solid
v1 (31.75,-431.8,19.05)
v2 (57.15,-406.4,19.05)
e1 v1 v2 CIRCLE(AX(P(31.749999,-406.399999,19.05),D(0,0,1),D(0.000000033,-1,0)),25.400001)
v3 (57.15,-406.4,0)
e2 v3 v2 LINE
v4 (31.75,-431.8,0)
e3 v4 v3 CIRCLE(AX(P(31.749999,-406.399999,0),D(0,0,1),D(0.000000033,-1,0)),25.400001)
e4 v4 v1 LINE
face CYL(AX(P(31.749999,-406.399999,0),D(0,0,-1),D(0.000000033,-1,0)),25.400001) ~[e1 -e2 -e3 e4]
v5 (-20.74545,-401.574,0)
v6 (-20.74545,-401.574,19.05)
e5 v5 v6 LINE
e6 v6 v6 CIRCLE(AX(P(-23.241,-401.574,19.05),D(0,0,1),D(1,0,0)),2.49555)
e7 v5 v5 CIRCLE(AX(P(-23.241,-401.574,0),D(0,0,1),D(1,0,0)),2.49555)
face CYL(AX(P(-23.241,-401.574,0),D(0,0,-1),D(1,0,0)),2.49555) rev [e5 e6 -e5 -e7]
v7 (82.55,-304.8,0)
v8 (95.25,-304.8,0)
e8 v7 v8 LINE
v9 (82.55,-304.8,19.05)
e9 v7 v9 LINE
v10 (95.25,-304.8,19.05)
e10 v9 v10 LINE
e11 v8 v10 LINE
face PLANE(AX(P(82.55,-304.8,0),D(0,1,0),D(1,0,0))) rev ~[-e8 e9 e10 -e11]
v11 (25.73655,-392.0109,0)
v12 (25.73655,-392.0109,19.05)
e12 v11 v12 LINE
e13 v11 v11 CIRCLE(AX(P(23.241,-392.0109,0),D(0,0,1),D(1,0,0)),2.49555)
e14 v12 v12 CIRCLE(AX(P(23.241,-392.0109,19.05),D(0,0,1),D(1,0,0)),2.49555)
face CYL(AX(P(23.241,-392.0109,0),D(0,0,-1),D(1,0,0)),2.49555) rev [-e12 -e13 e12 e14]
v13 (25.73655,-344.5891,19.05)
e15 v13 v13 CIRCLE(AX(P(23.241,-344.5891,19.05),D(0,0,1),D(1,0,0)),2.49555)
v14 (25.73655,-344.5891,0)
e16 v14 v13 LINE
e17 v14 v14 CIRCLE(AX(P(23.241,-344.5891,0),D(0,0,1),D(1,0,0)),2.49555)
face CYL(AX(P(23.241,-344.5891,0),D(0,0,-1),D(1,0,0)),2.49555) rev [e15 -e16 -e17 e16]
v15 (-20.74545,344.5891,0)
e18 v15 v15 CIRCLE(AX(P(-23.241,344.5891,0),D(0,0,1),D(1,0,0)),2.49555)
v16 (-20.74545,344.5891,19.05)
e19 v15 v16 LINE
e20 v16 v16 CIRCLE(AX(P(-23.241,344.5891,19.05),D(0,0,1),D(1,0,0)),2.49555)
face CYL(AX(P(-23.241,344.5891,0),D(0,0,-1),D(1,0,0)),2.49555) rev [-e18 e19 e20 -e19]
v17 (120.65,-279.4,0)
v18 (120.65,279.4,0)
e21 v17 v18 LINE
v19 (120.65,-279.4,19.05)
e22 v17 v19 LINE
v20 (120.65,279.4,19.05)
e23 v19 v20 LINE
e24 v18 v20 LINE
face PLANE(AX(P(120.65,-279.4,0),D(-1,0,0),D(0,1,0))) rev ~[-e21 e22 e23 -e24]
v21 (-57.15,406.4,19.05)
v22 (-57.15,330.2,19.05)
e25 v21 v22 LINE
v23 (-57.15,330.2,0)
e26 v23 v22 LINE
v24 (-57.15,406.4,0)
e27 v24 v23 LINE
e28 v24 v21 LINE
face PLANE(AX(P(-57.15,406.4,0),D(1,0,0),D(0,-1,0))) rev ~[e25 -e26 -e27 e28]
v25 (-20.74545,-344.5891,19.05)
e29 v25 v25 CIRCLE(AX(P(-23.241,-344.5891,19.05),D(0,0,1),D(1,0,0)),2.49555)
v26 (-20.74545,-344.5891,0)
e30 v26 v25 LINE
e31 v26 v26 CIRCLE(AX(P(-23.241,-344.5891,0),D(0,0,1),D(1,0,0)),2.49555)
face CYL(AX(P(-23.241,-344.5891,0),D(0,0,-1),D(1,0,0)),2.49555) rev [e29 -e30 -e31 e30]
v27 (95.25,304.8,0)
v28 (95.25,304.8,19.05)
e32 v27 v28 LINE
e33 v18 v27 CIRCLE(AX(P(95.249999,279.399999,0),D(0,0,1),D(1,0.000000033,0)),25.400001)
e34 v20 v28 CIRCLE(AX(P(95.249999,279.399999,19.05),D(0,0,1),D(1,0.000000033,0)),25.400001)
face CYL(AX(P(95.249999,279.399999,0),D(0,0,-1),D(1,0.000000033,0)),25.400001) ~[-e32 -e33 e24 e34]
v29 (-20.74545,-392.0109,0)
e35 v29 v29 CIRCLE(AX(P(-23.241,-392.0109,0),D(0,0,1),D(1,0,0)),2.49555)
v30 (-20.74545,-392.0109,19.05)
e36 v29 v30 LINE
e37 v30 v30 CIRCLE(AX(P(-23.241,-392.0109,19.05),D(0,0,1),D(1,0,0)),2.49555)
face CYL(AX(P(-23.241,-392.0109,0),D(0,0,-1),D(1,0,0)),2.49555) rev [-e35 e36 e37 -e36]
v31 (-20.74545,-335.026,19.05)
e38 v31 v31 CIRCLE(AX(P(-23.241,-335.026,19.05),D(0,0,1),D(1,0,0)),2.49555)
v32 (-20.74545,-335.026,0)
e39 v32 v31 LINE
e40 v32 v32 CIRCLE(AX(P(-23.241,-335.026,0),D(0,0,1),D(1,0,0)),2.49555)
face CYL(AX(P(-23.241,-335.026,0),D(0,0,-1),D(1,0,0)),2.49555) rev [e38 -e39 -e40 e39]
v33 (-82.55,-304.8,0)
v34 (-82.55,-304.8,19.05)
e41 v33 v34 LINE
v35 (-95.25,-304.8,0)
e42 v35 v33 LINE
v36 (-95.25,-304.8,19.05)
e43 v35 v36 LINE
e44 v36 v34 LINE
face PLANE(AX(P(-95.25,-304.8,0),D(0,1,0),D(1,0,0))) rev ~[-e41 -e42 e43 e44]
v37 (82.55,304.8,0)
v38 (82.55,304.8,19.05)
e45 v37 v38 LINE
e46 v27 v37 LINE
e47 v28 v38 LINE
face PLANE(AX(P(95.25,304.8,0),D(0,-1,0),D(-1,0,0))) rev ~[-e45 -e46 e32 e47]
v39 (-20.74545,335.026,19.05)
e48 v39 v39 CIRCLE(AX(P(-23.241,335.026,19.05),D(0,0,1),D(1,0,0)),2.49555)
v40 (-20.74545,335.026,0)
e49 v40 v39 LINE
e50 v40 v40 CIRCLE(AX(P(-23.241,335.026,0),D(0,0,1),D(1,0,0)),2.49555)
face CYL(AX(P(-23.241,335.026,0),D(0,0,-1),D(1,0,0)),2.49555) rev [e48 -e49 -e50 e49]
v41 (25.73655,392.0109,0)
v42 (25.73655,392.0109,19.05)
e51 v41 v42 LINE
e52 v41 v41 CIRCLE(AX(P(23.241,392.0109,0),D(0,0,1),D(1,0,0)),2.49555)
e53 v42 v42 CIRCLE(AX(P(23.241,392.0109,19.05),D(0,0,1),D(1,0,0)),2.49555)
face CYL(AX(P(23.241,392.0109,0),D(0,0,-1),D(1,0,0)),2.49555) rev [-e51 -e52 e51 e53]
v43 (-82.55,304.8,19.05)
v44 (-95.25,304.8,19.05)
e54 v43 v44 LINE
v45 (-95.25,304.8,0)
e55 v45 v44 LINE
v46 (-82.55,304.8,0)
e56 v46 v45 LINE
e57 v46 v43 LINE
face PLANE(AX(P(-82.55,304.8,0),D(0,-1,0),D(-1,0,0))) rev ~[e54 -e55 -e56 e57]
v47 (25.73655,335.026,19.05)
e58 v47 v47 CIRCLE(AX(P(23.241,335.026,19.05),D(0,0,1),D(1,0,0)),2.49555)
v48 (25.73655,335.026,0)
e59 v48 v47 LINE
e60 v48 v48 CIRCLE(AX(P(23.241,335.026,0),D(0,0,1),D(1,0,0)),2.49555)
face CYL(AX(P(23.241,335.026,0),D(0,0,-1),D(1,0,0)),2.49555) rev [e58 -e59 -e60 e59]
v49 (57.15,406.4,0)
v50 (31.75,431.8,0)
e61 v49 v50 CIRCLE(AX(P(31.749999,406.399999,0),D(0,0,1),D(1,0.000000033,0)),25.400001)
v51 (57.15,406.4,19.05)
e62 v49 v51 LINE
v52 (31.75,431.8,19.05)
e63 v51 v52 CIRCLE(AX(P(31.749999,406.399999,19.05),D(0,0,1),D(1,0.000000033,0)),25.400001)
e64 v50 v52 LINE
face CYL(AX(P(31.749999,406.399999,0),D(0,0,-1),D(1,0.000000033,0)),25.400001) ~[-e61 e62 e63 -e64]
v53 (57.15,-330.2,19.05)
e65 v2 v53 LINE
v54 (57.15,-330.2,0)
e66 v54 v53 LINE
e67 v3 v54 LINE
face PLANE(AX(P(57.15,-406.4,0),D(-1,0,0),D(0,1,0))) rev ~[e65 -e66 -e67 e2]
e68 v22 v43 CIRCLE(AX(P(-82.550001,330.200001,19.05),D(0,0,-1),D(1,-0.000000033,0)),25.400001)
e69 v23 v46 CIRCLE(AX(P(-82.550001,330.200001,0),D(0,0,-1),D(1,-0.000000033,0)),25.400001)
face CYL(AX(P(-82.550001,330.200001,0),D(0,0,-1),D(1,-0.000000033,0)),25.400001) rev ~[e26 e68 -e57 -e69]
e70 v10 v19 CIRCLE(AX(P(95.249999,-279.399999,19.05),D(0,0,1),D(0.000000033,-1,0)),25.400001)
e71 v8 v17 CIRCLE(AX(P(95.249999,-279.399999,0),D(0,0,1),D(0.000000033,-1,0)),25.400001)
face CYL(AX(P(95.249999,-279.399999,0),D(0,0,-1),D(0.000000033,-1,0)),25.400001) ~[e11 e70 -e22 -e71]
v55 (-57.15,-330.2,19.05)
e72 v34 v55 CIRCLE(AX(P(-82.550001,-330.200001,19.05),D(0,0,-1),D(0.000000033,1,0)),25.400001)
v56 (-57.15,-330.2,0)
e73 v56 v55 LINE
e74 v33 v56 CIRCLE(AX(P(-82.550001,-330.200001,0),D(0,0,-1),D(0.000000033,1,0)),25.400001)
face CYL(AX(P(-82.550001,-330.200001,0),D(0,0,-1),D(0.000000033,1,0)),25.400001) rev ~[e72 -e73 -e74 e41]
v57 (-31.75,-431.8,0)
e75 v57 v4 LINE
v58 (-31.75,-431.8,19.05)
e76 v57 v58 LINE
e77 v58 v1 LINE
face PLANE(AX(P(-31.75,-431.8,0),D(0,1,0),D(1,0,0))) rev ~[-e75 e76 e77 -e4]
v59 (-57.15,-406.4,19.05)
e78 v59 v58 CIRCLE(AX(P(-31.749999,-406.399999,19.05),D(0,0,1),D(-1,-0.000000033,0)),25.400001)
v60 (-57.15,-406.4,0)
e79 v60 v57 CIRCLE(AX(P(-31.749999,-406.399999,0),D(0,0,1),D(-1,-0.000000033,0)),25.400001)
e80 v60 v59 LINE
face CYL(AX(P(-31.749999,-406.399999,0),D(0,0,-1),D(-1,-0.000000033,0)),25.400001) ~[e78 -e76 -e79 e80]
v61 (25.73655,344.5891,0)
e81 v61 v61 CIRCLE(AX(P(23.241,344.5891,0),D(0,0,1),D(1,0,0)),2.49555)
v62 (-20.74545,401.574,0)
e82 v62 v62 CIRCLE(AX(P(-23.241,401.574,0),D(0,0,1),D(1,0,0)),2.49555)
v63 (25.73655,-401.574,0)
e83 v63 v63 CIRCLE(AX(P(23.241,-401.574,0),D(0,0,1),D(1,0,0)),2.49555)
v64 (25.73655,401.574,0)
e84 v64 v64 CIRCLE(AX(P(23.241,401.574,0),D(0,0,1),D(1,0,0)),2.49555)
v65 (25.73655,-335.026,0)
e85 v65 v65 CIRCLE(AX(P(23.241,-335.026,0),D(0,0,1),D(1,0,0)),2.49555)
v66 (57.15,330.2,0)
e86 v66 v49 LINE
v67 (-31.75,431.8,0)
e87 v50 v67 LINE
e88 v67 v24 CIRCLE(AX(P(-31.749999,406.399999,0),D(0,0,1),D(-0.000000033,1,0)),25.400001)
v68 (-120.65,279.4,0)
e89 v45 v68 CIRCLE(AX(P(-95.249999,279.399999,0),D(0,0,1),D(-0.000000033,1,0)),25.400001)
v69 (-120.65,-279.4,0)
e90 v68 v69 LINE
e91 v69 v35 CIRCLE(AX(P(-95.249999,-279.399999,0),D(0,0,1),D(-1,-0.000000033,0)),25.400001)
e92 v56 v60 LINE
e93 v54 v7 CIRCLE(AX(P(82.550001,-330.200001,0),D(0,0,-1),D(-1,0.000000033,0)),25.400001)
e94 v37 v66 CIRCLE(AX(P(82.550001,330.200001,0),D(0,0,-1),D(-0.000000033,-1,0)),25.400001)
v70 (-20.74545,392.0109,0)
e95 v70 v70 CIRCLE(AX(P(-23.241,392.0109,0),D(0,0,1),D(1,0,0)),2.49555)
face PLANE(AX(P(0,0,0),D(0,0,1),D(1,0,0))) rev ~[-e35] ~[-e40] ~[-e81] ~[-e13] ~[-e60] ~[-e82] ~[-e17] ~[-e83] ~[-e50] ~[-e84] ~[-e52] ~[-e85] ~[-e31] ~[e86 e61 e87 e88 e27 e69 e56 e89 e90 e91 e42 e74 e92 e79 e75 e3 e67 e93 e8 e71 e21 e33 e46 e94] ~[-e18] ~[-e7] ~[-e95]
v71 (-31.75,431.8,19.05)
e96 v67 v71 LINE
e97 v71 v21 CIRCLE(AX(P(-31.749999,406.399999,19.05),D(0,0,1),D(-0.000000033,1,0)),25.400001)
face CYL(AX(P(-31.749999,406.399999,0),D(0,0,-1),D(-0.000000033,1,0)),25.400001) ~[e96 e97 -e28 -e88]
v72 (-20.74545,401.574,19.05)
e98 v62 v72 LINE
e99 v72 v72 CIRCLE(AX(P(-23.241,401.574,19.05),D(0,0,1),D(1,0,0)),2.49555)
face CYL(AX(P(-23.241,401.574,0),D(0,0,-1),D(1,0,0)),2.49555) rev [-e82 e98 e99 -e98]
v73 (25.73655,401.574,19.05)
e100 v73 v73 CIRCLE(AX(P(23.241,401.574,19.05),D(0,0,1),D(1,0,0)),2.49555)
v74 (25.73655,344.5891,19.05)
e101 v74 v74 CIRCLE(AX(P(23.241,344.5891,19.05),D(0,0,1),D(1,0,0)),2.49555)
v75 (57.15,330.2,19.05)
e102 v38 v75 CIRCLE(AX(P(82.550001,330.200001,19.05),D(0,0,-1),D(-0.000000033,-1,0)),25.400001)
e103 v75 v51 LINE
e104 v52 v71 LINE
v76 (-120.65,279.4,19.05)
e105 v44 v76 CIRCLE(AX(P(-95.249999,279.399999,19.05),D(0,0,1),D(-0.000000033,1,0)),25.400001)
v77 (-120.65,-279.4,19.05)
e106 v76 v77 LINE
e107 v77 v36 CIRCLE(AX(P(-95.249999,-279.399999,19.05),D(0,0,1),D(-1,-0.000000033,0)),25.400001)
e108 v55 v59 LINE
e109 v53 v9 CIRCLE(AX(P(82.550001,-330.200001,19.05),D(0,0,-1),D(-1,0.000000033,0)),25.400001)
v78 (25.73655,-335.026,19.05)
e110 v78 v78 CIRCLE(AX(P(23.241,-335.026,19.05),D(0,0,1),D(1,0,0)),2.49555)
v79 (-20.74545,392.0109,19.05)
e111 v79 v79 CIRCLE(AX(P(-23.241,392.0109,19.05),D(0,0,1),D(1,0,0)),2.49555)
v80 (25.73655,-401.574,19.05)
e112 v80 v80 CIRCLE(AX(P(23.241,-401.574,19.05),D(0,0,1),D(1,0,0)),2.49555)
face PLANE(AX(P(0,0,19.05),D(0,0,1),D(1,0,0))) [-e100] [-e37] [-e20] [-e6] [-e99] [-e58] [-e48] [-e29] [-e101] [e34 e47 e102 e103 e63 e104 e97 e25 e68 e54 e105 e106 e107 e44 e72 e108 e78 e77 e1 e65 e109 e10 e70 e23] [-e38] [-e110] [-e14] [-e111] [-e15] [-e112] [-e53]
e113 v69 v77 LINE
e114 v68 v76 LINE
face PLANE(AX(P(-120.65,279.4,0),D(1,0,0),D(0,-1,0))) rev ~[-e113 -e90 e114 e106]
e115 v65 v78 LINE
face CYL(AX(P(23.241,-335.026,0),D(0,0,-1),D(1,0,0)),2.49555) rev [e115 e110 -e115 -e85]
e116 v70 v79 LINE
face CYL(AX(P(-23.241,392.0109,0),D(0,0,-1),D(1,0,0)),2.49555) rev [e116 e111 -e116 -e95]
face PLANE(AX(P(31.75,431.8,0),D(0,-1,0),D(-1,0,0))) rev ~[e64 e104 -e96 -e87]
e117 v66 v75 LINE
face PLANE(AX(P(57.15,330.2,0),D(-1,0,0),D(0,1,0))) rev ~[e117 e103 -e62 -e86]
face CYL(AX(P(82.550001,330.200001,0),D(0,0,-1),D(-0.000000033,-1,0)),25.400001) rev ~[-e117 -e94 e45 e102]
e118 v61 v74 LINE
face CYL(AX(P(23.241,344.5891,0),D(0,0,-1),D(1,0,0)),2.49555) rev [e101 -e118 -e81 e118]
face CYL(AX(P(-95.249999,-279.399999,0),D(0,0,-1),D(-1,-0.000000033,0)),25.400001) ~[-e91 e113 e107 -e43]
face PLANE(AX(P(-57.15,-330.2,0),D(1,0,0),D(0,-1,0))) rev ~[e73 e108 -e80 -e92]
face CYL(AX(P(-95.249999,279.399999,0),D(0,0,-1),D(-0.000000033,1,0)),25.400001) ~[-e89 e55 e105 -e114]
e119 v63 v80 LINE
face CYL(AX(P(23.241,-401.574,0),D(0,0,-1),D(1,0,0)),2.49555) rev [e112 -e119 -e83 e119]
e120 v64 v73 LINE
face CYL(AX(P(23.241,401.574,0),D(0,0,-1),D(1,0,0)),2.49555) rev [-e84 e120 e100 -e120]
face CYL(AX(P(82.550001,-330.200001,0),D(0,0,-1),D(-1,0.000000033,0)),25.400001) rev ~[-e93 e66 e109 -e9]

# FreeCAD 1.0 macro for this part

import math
import FreeCAD as App
import Part
import Sketcher

V = App.Vector
Q = App.Units.Quantity

doc = App.newDocument("Part")
body = doc.addObject("PartDesign::Body", "Body")

# Sketch on XY plane
sketch1 = body.newObject("Sketcher::SketchObject", "Sketch")
sketch1.AttachmentSupport = (doc.getObject("XY_Plane"), [""])
sketch1.MapMode = "FlatFace"
sketch1.addGeometry([
    Part.LineSegment(V(95.2, 304.8, 0), V(82.5, 304.8, 0)),  # 0
    Part.ArcOfCircle(Part.Circle(V(82.6, 330.2, 0), V(0, 0, 1), 25.4), math.radians(-180), math.radians(-90)),  # 1
    Part.LineSegment(V(57.1, 330.2, 0), V(57.1, 406.4, 0)),  # 2
    Part.ArcOfCircle(Part.Circle(V(31.7, 406.4, 0), V(0, 0, 1), 25.4), math.radians(0), math.radians(90)),  # 3
    Part.LineSegment(V(31.8, 431.8, 0), V(-31.8, 431.8, 0)),  # 4
    Part.ArcOfCircle(Part.Circle(V(-31.7, 406.4, 0), V(0, 0, 1), 25.4), math.radians(90), math.radians(180)),  # 5
    Part.LineSegment(V(-57.1, 406.4, 0), V(-57.1, 330.2, 0)),  # 6
    Part.ArcOfCircle(Part.Circle(V(-82.6, 330.2, 0), V(0, 0, 1), 25.4), math.radians(-90), math.radians(0)),  # 7
    Part.LineSegment(V(-82.5, 304.8, 0), V(-95.2, 304.8, 0)),  # 8
    Part.ArcOfCircle(Part.Circle(V(-95.2, 279.4, 0), V(0, 0, 1), 25.4), math.radians(90), math.radians(180)),  # 9
    Part.LineSegment(V(-120.7, 279.4, 0), V(-120.7, -279.4, 0)),  # 10
    Part.ArcOfCircle(Part.Circle(V(-95.2, -279.4, 0), V(0, 0, 1), 25.4), math.radians(-180), math.radians(-90)),  # 11
    Part.LineSegment(V(-95.2, -304.8, 0), V(-82.5, -304.8, 0)),  # 12
    Part.ArcOfCircle(Part.Circle(V(-82.6, -330.2, 0), V(0, 0, 1), 25.4), math.radians(0), math.radians(90)),  # 13
    Part.LineSegment(V(-57.1, -330.2, 0), V(-57.1, -406.4, 0)),  # 14
    Part.ArcOfCircle(Part.Circle(V(-31.7, -406.4, 0), V(0, 0, 1), 25.4), math.radians(-180), math.radians(-90)),  # 15
    Part.LineSegment(V(-31.8, -431.8, 0), V(31.8, -431.8, 0)),  # 16
    Part.ArcOfCircle(Part.Circle(V(31.7, -406.4, 0), V(0, 0, 1), 25.4), math.radians(-90), math.radians(0)),  # 17
    Part.LineSegment(V(57.1, -406.4, 0), V(57.1, -330.2, 0)),  # 18
    Part.ArcOfCircle(Part.Circle(V(82.6, -330.2, 0), V(0, 0, 1), 25.4), math.radians(90), math.radians(180)),  # 19
    Part.LineSegment(V(82.5, -304.8, 0), V(95.2, -304.8, 0)),  # 20
    Part.ArcOfCircle(Part.Circle(V(95.2, -279.4, 0), V(0, 0, 1), 25.4), math.radians(-90), math.radians(0)),  # 21
    Part.LineSegment(V(120.7, -279.4, 0), V(120.7, 279.4, 0)),  # 22
    Part.ArcOfCircle(Part.Circle(V(95.2, 279.4, 0), V(0, 0, 1), 25.4), math.radians(0), math.radians(90)),  # 23
    Part.Circle(V(-23.2, -401.6, 0), V(0, 0, 1), 2.5),  # 24
    Part.Circle(V(-23.2, -392, 0), V(0, 0, 1), 2.5),  # 25
    Part.Circle(V(-23.2, -344.6, 0), V(0, 0, 1), 2.5),  # 26
    Part.Circle(V(-23.2, -335, 0), V(0, 0, 1), 2.5),  # 27
    Part.Circle(V(23.2, -401.6, 0), V(0, 0, 1), 2.5),  # 28
    Part.Circle(V(23.2, -392, 0), V(0, 0, 1), 2.5),  # 29
    Part.Circle(V(23.2, -344.6, 0), V(0, 0, 1), 2.5),  # 30
    Part.Circle(V(23.2, -335, 0), V(0, 0, 1), 2.5),  # 31
    Part.Circle(V(-23.2, 335, 0), V(0, 0, 1), 2.5),  # 32
    Part.Circle(V(-23.2, 344.6, 0), V(0, 0, 1), 2.5),  # 33
    Part.Circle(V(-23.2, 392, 0), V(0, 0, 1), 2.5),  # 34
    Part.Circle(V(-23.2, 401.6, 0), V(0, 0, 1), 2.5),  # 35
    Part.Circle(V(23.2, 335, 0), V(0, 0, 1), 2.5),  # 36
    Part.Circle(V(23.2, 344.6, 0), V(0, 0, 1), 2.5),  # 37
    Part.Circle(V(23.2, 392, 0), V(0, 0, 1), 2.5),  # 38
    Part.Circle(V(23.2, 401.6, 0), V(0, 0, 1), 2.5),  # 39
], False)
sketch1.addConstraint([
    Sketcher.Constraint("Tangent", 0, 2, 1, 2),
    Sketcher.Constraint("Tangent", 1, 1, 2, 1),
    Sketcher.Constraint("Tangent", 2, 2, 3, 1),
    Sketcher.Constraint("Tangent", 3, 2, 4, 1),
    Sketcher.Constraint("Tangent", 4, 2, 5, 1),
    Sketcher.Constraint("Tangent", 5, 2, 6, 1),
    Sketcher.Constraint("Tangent", 6, 2, 7, 2),
    Sketcher.Constraint("Tangent", 7, 1, 8, 1),
    Sketcher.Constraint("Tangent", 8, 2, 9, 1),
    Sketcher.Constraint("Tangent", 9, 2, 10, 1),
    Sketcher.Constraint("Tangent", 10, 2, 11, 1),
    Sketcher.Constraint("Tangent", 11, 2, 12, 1),
    Sketcher.Constraint("Tangent", 12, 2, 13, 2),
    Sketcher.Constraint("Tangent", 13, 1, 14, 1),
    Sketcher.Constraint("Tangent", 14, 2, 15, 1),
    Sketcher.Constraint("Tangent", 15, 2, 16, 1),
    Sketcher.Constraint("Tangent", 16, 2, 17, 1),
    Sketcher.Constraint("Tangent", 17, 2, 18, 1),
    Sketcher.Constraint("Tangent", 18, 2, 19, 2),
    Sketcher.Constraint("Tangent", 19, 1, 20, 1),
    Sketcher.Constraint("Tangent", 20, 2, 21, 1),
    Sketcher.Constraint("Tangent", 21, 2, 22, 1),
    Sketcher.Constraint("Tangent", 22, 2, 23, 1),
    Sketcher.Constraint("Tangent", 23, 2, 0, 1),
    Sketcher.Constraint("Horizontal", 0),
    Sketcher.Constraint("Vertical", 2),
    Sketcher.Constraint("Horizontal", 4),
    Sketcher.Constraint("Vertical", 6),
    Sketcher.Constraint("Horizontal", 8),
    Sketcher.Constraint("Vertical", 10),
    Sketcher.Constraint("Horizontal", 12),
    Sketcher.Constraint("Vertical", 14),
    Sketcher.Constraint("Horizontal", 16),
    Sketcher.Constraint("Vertical", 18),
    Sketcher.Constraint("Horizontal", 20),
    Sketcher.Constraint("Vertical", 22),
    Sketcher.Constraint("Equal", 1, 3),
    Sketcher.Constraint("Equal", 3, 5),
    Sketcher.Constraint("Equal", 5, 7),
    Sketcher.Constraint("Equal", 7, 9),
    Sketcher.Constraint("Equal", 9, 11),
    Sketcher.Constraint("Equal", 11, 13),
    Sketcher.Constraint("Equal", 13, 15),
    Sketcher.Constraint("Equal", 15, 17),
    Sketcher.Constraint("Equal", 17, 19),
    Sketcher.Constraint("Equal", 19, 21),
    Sketcher.Constraint("Equal", 21, 23),
    Sketcher.Constraint("Equal", 24, 25),
    Sketcher.Constraint("Equal", 25, 26),
    Sketcher.Constraint("Equal", 26, 27),
    Sketcher.Constraint("Equal", 27, 28),
    Sketcher.Constraint("Equal", 28, 29),
    Sketcher.Constraint("Equal", 29, 30),
    Sketcher.Constraint("Equal", 30, 31),
    Sketcher.Constraint("Equal", 31, 32),
    Sketcher.Constraint("Equal", 32, 33),
    Sketcher.Constraint("Equal", 33, 34),
    Sketcher.Constraint("Equal", 34, 35),
    Sketcher.Constraint("Equal", 35, 36),
    Sketcher.Constraint("Equal", 36, 37),
    Sketcher.Constraint("Equal", 37, 38),
    Sketcher.Constraint("Equal", 38, 39),
    Sketcher.Constraint("Symmetric", 1, 3, 13, 3, -1, 1),
    Sketcher.Constraint("Symmetric", 5, 3, 17, 3, -1, 1),
    Sketcher.Constraint("Symmetric", 9, 3, 21, 3, -1, 1),
    Sketcher.Constraint("Symmetric", 31, 3, 32, 3, -1, 1),
    Sketcher.Constraint("Symmetric", 30, 3, 33, 3, -1, 1),
    Sketcher.Constraint("Symmetric", 29, 3, 34, 3, -1, 1),
    Sketcher.Constraint("Symmetric", 28, 3, 35, 3, -1, 1),
    Sketcher.Constraint("Symmetric", 27, 3, 36, 3, -1, 1),
    Sketcher.Constraint("Symmetric", 26, 3, 37, 3, -1, 1),
    Sketcher.Constraint("Symmetric", 25, 3, 38, 3, -1, 1),
    Sketcher.Constraint("Symmetric", 24, 3, 39, 3, -1, 1),
    Sketcher.Constraint("Symmetric", 1, 3, 7, 3, -2),
    Sketcher.Constraint("Symmetric", 24, 3, 28, 3, -2),
    Sketcher.Constraint("Symmetric", 25, 3, 29, 3, -2),
    Sketcher.Constraint("Symmetric", 26, 3, 30, 3, -2),
    Sketcher.Constraint("Symmetric", 27, 3, 31, 3, -2),
    Sketcher.Constraint("Vertical", 24, 3, 25, 3),
    Sketcher.Constraint("Vertical", 25, 3, 26, 3),
    Sketcher.Constraint("Vertical", 26, 3, 27, 3),
    Sketcher.Constraint("Radius", 1, Q("1 in")),
    Sketcher.Constraint("DistanceY", 2, 1, 2, 2, Q("3 in")),
    Sketcher.Constraint("DistanceY", 10, 2, 10, 1, Q("22 in")),
    Sketcher.Constraint("DistanceX", 0, 2, 0, 1, Q("0.5 in")),
    Sketcher.Constraint("DistanceX", 4, 2, 4, 1, Q("2.5 in")),
    Sketcher.Constraint("Diameter", 24, Q("0.1965 in")),
    Sketcher.Constraint("DistanceY", 24, 3, -1, 1, Q("15.81 in")),
    Sketcher.Constraint("DistanceY", 27, 3, -1, 1, Q("13.19 in")),
    Sketcher.Constraint("DistanceX", 24, 3, 28, 3, Q("1.83 in")),
    Sketcher.Constraint("DistanceY", 25, 3, 26, 3, Q("1.867 in")),
    Sketcher.Constraint("DistanceY", 25, 3, -1, 1, Q("15.4335 in")),
])
pad1 = body.newObject("PartDesign::Pad", "Pad")
pad1.Profile = sketch1
pad1.Length = Q("0.75 in")

doc.recompute()
